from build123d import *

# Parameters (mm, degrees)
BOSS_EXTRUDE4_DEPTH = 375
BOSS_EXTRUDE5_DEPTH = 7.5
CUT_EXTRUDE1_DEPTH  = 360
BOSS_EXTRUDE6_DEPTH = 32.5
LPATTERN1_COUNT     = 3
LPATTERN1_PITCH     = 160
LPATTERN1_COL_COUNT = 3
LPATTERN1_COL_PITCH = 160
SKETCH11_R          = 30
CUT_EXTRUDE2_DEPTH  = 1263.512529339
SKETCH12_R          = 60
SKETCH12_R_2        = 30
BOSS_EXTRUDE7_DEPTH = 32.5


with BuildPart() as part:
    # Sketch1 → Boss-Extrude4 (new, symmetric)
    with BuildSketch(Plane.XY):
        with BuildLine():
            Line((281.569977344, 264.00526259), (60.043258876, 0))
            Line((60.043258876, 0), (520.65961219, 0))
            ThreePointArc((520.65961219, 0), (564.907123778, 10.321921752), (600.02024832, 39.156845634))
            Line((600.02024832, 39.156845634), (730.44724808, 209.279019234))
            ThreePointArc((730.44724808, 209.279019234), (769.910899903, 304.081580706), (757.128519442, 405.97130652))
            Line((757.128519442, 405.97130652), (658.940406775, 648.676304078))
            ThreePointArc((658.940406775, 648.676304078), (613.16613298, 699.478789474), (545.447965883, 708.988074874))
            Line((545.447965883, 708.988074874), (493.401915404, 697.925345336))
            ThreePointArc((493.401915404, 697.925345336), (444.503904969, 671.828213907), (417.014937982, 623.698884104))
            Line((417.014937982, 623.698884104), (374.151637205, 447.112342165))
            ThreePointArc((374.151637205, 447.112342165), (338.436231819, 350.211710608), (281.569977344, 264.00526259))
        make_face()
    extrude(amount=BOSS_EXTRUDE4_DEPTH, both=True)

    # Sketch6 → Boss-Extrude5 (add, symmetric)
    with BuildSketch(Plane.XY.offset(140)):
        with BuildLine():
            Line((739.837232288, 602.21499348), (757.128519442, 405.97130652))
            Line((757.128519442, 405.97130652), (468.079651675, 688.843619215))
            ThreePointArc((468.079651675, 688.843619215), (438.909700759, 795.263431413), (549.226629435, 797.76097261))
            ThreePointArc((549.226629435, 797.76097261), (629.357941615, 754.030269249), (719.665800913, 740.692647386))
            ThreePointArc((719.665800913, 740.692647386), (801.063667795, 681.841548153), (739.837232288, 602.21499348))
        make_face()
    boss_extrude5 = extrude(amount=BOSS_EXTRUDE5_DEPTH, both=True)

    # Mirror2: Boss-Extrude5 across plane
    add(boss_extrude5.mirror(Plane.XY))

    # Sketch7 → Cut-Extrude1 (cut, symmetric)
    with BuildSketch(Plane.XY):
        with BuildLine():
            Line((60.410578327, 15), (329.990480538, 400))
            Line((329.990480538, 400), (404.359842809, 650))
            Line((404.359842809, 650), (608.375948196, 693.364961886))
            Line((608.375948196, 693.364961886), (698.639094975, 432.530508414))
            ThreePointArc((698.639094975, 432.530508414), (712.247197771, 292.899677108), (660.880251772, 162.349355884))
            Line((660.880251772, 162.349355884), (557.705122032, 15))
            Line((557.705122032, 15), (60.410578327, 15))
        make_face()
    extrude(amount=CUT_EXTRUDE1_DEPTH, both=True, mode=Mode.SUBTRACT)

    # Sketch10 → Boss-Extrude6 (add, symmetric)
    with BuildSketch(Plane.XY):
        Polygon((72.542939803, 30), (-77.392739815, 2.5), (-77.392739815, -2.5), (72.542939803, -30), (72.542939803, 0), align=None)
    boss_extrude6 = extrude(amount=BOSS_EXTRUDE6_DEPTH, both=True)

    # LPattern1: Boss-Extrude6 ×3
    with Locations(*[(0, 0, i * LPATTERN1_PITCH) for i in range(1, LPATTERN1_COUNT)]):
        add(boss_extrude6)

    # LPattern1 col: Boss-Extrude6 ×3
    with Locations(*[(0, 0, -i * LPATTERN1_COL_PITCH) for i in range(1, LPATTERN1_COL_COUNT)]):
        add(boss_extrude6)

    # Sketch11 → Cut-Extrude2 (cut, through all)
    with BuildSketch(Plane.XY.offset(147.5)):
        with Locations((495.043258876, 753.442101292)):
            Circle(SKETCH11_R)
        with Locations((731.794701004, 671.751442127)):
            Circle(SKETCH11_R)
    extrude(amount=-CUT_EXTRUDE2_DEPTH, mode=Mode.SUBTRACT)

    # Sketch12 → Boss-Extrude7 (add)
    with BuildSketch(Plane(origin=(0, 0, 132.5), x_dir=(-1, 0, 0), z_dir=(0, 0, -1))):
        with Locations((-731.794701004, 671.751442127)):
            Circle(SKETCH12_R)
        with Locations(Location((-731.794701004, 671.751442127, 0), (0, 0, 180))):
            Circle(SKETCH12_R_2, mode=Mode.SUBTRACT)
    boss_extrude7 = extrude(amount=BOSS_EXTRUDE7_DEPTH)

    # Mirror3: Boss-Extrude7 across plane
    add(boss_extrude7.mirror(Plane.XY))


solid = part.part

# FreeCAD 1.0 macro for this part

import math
import FreeCAD as App
import Part
import Sketcher
Q = App.Units.Quantity

doc = App.newDocument("Part")
params = doc.addObject("Spreadsheet::Sheet", "Params")
for row, (alias, value) in enumerate([
    ("sketch1_radius", "100 mm"),
    ("sketch1_radius2", "200 mm"),
    ("sketch1_radius3", "450 mm"),
    ("pad1_length", "750 mm"),
    ("sketch2_radius", "70 mm"),
    ("sketch2_radius2", "260 mm"),
    ("pad2_length", "15 mm"),
    ("sketch3_radius", "300 mm"),
    ("pocket1_length", "720 mm"),
    ("sketch4_height", "5 mm"),
    ("sketch4_height2", "60 mm"),
    ("pad3_length", "65 mm"),
    ("linearpattern_pitch", "160 mm"),
    ("linearpattern2_pitch", "160 mm"),
    ("sketch5_diameter", "60 mm"),
    ("sketch6_diameter", "120 mm"),
    ("sketch6_diameter2", "60 mm"),
    ("pad4_length", "32.5 mm"),
], start=1):
    params.set(f"A{row}", alias)
    params.set(f"B{row}", "=" + value)
    params.setAlias(f"B{row}", alias)

body = doc.addObject("PartDesign::Body", "Body")

# Sketch on XY plane
sketch1 = doc.addObject("Sketcher::SketchObject", "Sketch")
body.addObject(sketch1)
sketch1.AttachmentSupport = (doc.XY_Plane, [""])
sketch1.MapMode = "FlatFace"
sketch1.addGeometry([
    Part.LineSegment(App.Vector(282, 264, 0), App.Vector(60, 0, 0)),  # 0
    Part.LineSegment(App.Vector(60, 0, 0), App.Vector(521, 0, 0)),  # 1
    Part.ArcOfCircle(Part.Circle(App.Vector(521, 100, 0), App.Vector(0, 0, 1), 100), math.radians(-90), math.radians(-37)),  # 2
    Part.LineSegment(App.Vector(600, 39, 0), App.Vector(730, 209, 0)),  # 3
    Part.ArcOfCircle(Part.Circle(App.Vector(572, 331, 0), App.Vector(0, 0, 1), 200), math.radians(-37), math.radians(22)),  # 4
    Part.LineSegment(App.Vector(757, 406, 0), App.Vector(659, 649, 0)),  # 5
    Part.ArcOfCircle(Part.Circle(App.Vector(566, 611, 0), App.Vector(0, 0, 1), 100), math.radians(22), math.radians(102)),  # 6
    Part.LineSegment(App.Vector(545, 709, 0), App.Vector(493, 698, 0)),  # 7
    Part.ArcOfCircle(Part.Circle(App.Vector(514, 600, 0), App.Vector(0, 0, 1), 100), math.radians(102), math.radians(166)),  # 8
    Part.LineSegment(App.Vector(417, 624, 0), App.Vector(374, 447, 0)),  # 9
    Part.ArcOfCircle(Part.Circle(App.Vector(-63, 553, 0), App.Vector(0, 0, 1), 450), math.radians(-40), math.radians(-14)),  # 10
], False)
sketch1.addConstraint([
    Sketcher.Constraint("Coincident", 0, 2, 1, 1),
    Sketcher.Constraint("Tangent", 1, 2, 2, 1),
    Sketcher.Constraint("Tangent", 2, 2, 3, 1),
    Sketcher.Constraint("Tangent", 3, 2, 4, 1),
    Sketcher.Constraint("Tangent", 4, 2, 5, 1),
    Sketcher.Constraint("Tangent", 5, 2, 6, 1),
    Sketcher.Constraint("Tangent", 6, 2, 7, 1),
    Sketcher.Constraint("Tangent", 7, 2, 8, 1),
    Sketcher.Constraint("Tangent", 8, 2, 9, 1),
    Sketcher.Constraint("Tangent", 9, 2, 10, 2),
    Sketcher.Constraint("Tangent", 10, 1, 0, 1),
    Sketcher.Constraint("Horizontal", 1),
    Sketcher.Constraint("Equal", 2, 6),
    Sketcher.Constraint("Equal", 6, 8),
    Sketcher.Constraint("PointOnObject", 0, 2, -1),
    Sketcher.Constraint("Radius", 2, Q("100 mm")),
    Sketcher.Constraint("Radius", 4, Q("200 mm")),
    Sketcher.Constraint("Radius", 10, Q("450 mm")),
    Sketcher.Constraint("Angle", 0, Q("-130 deg")),
    Sketcher.Constraint("Angle", 7, Q("-168 deg")),
    Sketcher.Constraint("DistanceX", 2, 2, 3, 2, Q("130.427 mm")),
    Sketcher.Constraint("DistanceX", 10, 1, 4, 3, Q("290.155998 mm")),
    Sketcher.Constraint("DistanceY", 10, 3, 8, 3, Q("46.850898 mm")),
    Sketcher.Constraint("DistanceX", 9, 2, 8, 2, Q("42.863301 mm")),
    Sketcher.Constraint("Distance", 3, Q("214.36594 mm")),
    Sketcher.Constraint("Distance", 7, Q("53.20879 mm")),
    Sketcher.Constraint("DistanceX", 1, 1, 1, 2, Q("460.616353 mm")),
    Sketcher.Constraint("DistanceX", -1, 1, 0, 2, Q("60.043259 mm")),
])
sketch1.setExpression("Constraints[15]", "Params.sketch1_radius")
sketch1.setExpression("Constraints[16]", "Params.sketch1_radius2")
sketch1.setExpression("Constraints[17]", "Params.sketch1_radius3")
pad1 = doc.addObject("PartDesign::Pad", "Pad")
body.addObject(pad1)
pad1.Profile = sketch1
pad1.setExpression("Length", "Params.pad1_length")
pad1.Midplane = True

# Sketch on XY plane
sketch2 = doc.addObject("Sketcher::SketchObject", "Sketch001")
body.addObject(sketch2)
sketch2.AttachmentSupport = (doc.XY_Plane, [""])
sketch2.MapMode = "FlatFace"
sketch2.AttachmentOffset = App.Placement(App.Vector(0, 0, 140), App.Rotation())
sketch2.addGeometry([
    Part.LineSegment(App.Vector(757, 406, 0), App.Vector(740, 602, 0)),  # 0
    Part.ArcOfCircle(Part.Circle(App.Vector(732, 672, 0), App.Vector(0, 0, 1), 70), math.radians(-83), math.radians(100)),  # 1
    Part.ArcOfCircle(Part.Circle(App.Vector(712, 1001, 0), App.Vector(0, 0, 1), 260), math.radians(-129), math.radians(-88)),  # 2
    Part.ArcOfCircle(Part.Circle(App.Vector(495, 753, 0), App.Vector(0, 0, 1), 70), math.radians(39), math.radians(247)),  # 3
    Part.LineSegment(App.Vector(468, 689, 0), App.Vector(757, 406, 0)),  # 4
], False)
sketch2.addConstraint([
    Sketcher.Constraint("Coincident", 0, 2, 1, 1),
    Sketcher.Constraint("Coincident", 1, 2, 2, 2),
    Sketcher.Constraint("Coincident", 2, 1, 3, 1),
    Sketcher.Constraint("Coincident", 3, 2, 4, 1),
    Sketcher.Constraint("Coincident", 4, 2, 0, 1),
    Sketcher.Constraint("Equal", 1, 3),
    Sketcher.Constraint("Radius", 1, Q("70 mm")),
    Sketcher.Constraint("Radius", 2, Q("260 mm")),
    Sketcher.Constraint("DistanceX", -1, 1, 1, 3, Q("731.794701 mm")),
    Sketcher.Constraint("DistanceY", -1, 1, 3, 3, Q("753.442101 mm")),
    Sketcher.Constraint("DistanceX", -1, 1, 1, 2, Q("719.665801 mm")),
    Sketcher.Constraint("DistanceX", -1, 1, 3, 3, Q("495.043259 mm")),
    Sketcher.Constraint("DistanceX", -1, 1, 2, 1, Q("549.226629 mm")),
    Sketcher.Constraint("DistanceX", -1, 1, 3, 2, Q("468.079652 mm")),
    Sketcher.Constraint("DistanceX", -1, 1, 4, 2, Q("757.128519 mm")),
    Sketcher.Constraint("DistanceY", 1, 3, 3, 3, Q("81.690659 mm")),
    Sketcher.Constraint("DistanceX", 1, 3, 0, 2, Q("8.042531 mm")),
    Sketcher.Constraint("DistanceY", 4, 2, 1, 2, Q("334.721341 mm")),
])
sketch2.setExpression("Constraints[6]", "Params.sketch2_radius")
sketch2.setExpression("Constraints[7]", "Params.sketch2_radius2")
pad2 = doc.addObject("PartDesign::Pad", "Pad001")
body.addObject(pad2)
pad2.Profile = sketch2
pad2.setExpression("Length", "Params.pad2_length")
pad2.Midplane = True
doc.recompute()

mirrored = doc.addObject("PartDesign::Mirrored", "Mirrored")
body.addObject(mirrored)
mirrored.Originals = [pad2]
mirrored.MirrorPlane = (doc.XY_Plane, [""])
body.Tip = mirrored

# Sketch on XY plane
sketch3 = doc.addObject("Sketcher::SketchObject", "Sketch002")
body.addObject(sketch3)
sketch3.AttachmentSupport = (doc.XY_Plane, [""])
sketch3.MapMode = "FlatFace"
sketch3.addGeometry([
    Part.LineSegment(App.Vector(330, 400, 0), App.Vector(60, 15, 0)),  # 0
    Part.LineSegment(App.Vector(60, 15, 0), App.Vector(558, 15, 0)),  # 1
    Part.LineSegment(App.Vector(558, 15, 0), App.Vector(661, 162, 0)),  # 2
    Part.ArcOfCircle(Part.Circle(App.Vector(415, 334, 0), App.Vector(0, 0, 1), 300), math.radians(-35), math.radians(19)),  # 3
    Part.LineSegment(App.Vector(699, 433, 0), App.Vector(608, 693, 0)),  # 4
    Part.LineSegment(App.Vector(608, 693, 0), App.Vector(404, 650, 0)),  # 5
    Part.LineSegment(App.Vector(404, 650, 0), App.Vector(330, 400, 0)),  # 6
], False)
sketch3.addConstraint([
    Sketcher.Constraint("Coincident", 0, 2, 1, 1),
    Sketcher.Constraint("Coincident", 1, 2, 2, 1),
    Sketcher.Constraint("Tangent", 2, 2, 3, 1),
    Sketcher.Constraint("Tangent", 3, 2, 4, 1),
    Sketcher.Constraint("Coincident", 4, 2, 5, 1),
    Sketcher.Constraint("Coincident", 5, 2, 6, 1),
    Sketcher.Constraint("Coincident", 6, 2, 0, 1),
    Sketcher.Constraint("Horizontal", 1),
    Sketcher.Constraint("Parallel", 0, 2),
    Sketcher.Constraint("Radius", 3, Q("300 mm")),
    Sketcher.Constraint("Angle", 0, Q("-125 deg")),
    Sketcher.Constraint("Angle", 5, Q("-168 deg")),
    Sketcher.Constraint("DistanceY", -1, 1, 0, 2, Q("15 mm")),
    Sketcher.Constraint("DistanceY", -1, 1, 5, 2, Q("650 mm")),
    Sketcher.Constraint("DistanceY", -1, 1, 6, 2, Q("400 mm")),
    Sketcher.Constraint("Distance", 2, Q("179.880349 mm")),
    Sketcher.Constraint("Distance", 6, Q("260.82715 mm")),
    Sketcher.Constraint("DistanceX", 1, 1, 1, 2, Q("497.294544 mm")),
    Sketcher.Constraint("DistanceX", -1, 1, 3, 3, Q("415.134638 mm")),
    Sketcher.Constraint("DistanceY", -1, 1, 3, 2, Q("432.530508 mm")),
])
sketch3.setExpression("Constraints[9]", "Params.sketch3_radius")
pocket1 = doc.addObject("PartDesign::Pocket", "Pocket")
body.addObject(pocket1)
pocket1.Profile = sketch3
pocket1.setExpression("Length", "Params.pocket1_length")
pocket1.Midplane = True

# Sketch on XY plane
sketch4 = doc.addObject("Sketcher::SketchObject", "Sketch003")
body.addObject(sketch4)
sketch4.AttachmentSupport = (doc.XY_Plane, [""])
sketch4.MapMode = "FlatFace"
sketch4.addGeometry([
    Part.LineSegment(App.Vector(73, 30, 0), App.Vector(-77, 2, 0)),
    Part.LineSegment(App.Vector(-77, 2, 0), App.Vector(-77, -2, 0)),
    Part.LineSegment(App.Vector(-77, -2, 0), App.Vector(73, -30, 0)),
    Part.LineSegment(App.Vector(73, -30, 0), App.Vector(73, 30, 0)),
], False)
sketch4.addConstraint([
    Sketcher.Constraint("Coincident", 0, 2, 1, 1),
    Sketcher.Constraint("Coincident", 1, 2, 2, 1),
    Sketcher.Constraint("Coincident", 2, 2, 3, 1),
    Sketcher.Constraint("Coincident", 3, 2, 0, 1),
    Sketcher.Constraint("Vertical", 1),
    Sketcher.Constraint("Vertical", 3),
    Sketcher.Constraint("Equal", 0, 2),
    Sketcher.Constraint("DistanceY", 1, 2, 1, 1, Q("5 mm")),
    Sketcher.Constraint("DistanceY", 3, 1, 3, 2, Q("60 mm")),
    Sketcher.Constraint("DistanceY", 2, 2, -1, 1, Q("30 mm")),
    Sketcher.Constraint("DistanceX", 0, 2, -1, 1, Q("77.39274 mm")),
    Sketcher.Constraint("DistanceX", -1, 1, 2, 2, Q("72.54294 mm")),
])
sketch4.setExpression("Constraints[7]", "Params.sketch4_height")
sketch4.setExpression("Constraints[8]", "Params.sketch4_height2")
pad3 = doc.addObject("PartDesign::Pad", "Pad002")
body.addObject(pad3)
pad3.Profile = sketch4
pad3.setExpression("Length", "Params.pad3_length")
pad3.Midplane = True
doc.recompute()

linearpattern = doc.addObject("PartDesign::LinearPattern", "LinearPattern")
body.addObject(linearpattern)
linearpattern.Originals = [pad3]
linearpattern.Direction = (doc.Z_Axis, [""])
linearpattern.Mode = "offset"
linearpattern.setExpression("Offset", "Params.linearpattern_pitch")
linearpattern.Occurrences = 3
body.Tip = linearpattern
doc.recompute()

linearpattern2 = doc.addObject("PartDesign::LinearPattern", "LinearPattern001")
body.addObject(linearpattern2)
linearpattern2.Originals = [pad3]
linearpattern2.Direction = (doc.Z_Axis, [""])
linearpattern2.Mode = "offset"
linearpattern2.setExpression("Offset", "Params.linearpattern2_pitch")
linearpattern2.Occurrences = 3
linearpattern2.Reversed = True
body.Tip = linearpattern2

# Sketch on XY plane
sketch5 = doc.addObject("Sketcher::SketchObject", "Sketch004")
body.addObject(sketch5)
sketch5.AttachmentSupport = (doc.XY_Plane, [""])
sketch5.MapMode = "FlatFace"
sketch5.AttachmentOffset = App.Placement(App.Vector(0, 0, 147.5), App.Rotation())
sketch5.addGeometry([
    Part.Circle(App.Vector(495, 753, 0), App.Vector(0, 0, 1), 30),
    Part.Circle(App.Vector(732, 672, 0), App.Vector(0, 0, 1), 30),
], False)
sketch5.addConstraint([
    Sketcher.Constraint("Equal", 0, 1),
    Sketcher.Constraint("Diameter", 0, Q("60 mm")),
    Sketcher.Constraint("DistanceY", -1, 1, 0, 3, Q("753.442101 mm")),
    Sketcher.Constraint("DistanceX", -1, 1, 1, 3, Q("731.794701 mm")),
    Sketcher.Constraint("DistanceX", -1, 1, 0, 3, Q("495.043259 mm")),
    Sketcher.Constraint("DistanceY", 1, 3, 0, 3, Q("81.690659 mm")),
])
sketch5.setExpression("Constraints[1]", "Params.sketch5_diameter")
pocket2 = doc.addObject("PartDesign::Pocket", "Pocket001")
body.addObject(pocket2)
pocket2.Profile = sketch5
pocket2.Type = "ThroughAll"

# Sketch on XY plane
sketch6 = doc.addObject("Sketcher::SketchObject", "Sketch005")
body.addObject(sketch6)
sketch6.AttachmentSupport = (doc.XY_Plane, [""])
sketch6.MapMode = "FlatFace"
sketch6.AttachmentOffset = App.Placement(App.Vector(0, 0, 132.5), App.Rotation())
sketch6.addGeometry([
    Part.Circle(App.Vector(732, 672, 0), App.Vector(0, 0, 1), 60),
    Part.Circle(App.Vector(732, 672, 0), App.Vector(0, 0, 1), 30),
], False)
sketch6.addConstraint([
    Sketcher.Constraint("Coincident", 1, 3, 0, 3),
    Sketcher.Constraint("Diameter", 0, Q("120 mm")),
    Sketcher.Constraint("Diameter", 1, Q("60 mm")),
    Sketcher.Constraint("DistanceX", -1, 1, 0, 3, Q("731.794701 mm")),
    Sketcher.Constraint("DistanceY", -1, 1, 0, 3, Q("671.751442 mm")),
])
sketch6.setExpression("Constraints[1]", "Params.sketch6_diameter")
sketch6.setExpression("Constraints[2]", "Params.sketch6_diameter2")
pad4 = doc.addObject("PartDesign::Pad", "Pad003")
body.addObject(pad4)
pad4.Profile = sketch6
pad4.setExpression("Length", "Params.pad4_length")
pad4.Reversed = True
doc.recompute()

mirrored2 = doc.addObject("PartDesign::Mirrored", "Mirrored001")
body.addObject(mirrored2)
mirrored2.Originals = [pad4]
mirrored2.MirrorPlane = (doc.XY_Plane, [""])
body.Tip = mirrored2

doc.recompute()
